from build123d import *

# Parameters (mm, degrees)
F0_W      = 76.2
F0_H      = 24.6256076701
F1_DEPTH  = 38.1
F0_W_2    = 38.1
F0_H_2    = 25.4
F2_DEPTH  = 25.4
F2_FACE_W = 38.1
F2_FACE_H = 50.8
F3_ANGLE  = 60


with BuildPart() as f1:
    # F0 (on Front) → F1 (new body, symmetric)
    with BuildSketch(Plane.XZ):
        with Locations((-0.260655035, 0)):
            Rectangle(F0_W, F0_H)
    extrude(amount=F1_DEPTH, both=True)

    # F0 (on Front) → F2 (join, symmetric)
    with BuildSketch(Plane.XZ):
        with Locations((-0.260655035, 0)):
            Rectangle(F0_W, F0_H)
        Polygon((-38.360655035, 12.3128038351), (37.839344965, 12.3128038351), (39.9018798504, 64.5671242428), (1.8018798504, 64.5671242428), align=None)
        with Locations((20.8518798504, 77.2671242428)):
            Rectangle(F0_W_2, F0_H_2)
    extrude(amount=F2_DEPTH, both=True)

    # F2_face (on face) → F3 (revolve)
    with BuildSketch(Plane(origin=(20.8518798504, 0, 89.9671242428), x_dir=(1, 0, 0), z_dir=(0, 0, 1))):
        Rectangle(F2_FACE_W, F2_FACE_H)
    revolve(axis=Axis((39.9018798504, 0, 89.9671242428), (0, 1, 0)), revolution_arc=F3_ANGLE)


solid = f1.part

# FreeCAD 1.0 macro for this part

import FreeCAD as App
import Part
import Sketcher

V = App.Vector
Q = App.Units.Quantity

doc = App.newDocument("Part")
body = doc.addObject("PartDesign::Body", "Body")

# Sketch on XZ plane
sketch1 = body.newObject("Sketcher::SketchObject", "Sketch")
sketch1.AttachmentSupport = (doc.getObject("XZ_Plane"), [""])
sketch1.MapMode = "FlatFace"
sketch1.addGeometry([
    Part.LineSegment(V(-38.360655, 12.312804, 0), V(-38.360655, -12.312804, 0)),
    Part.LineSegment(V(-38.360655, -12.312804, 0), V(37.839345, -12.312804, 0)),
    Part.LineSegment(V(37.839345, -12.312804, 0), V(37.839345, 12.312804, 0)),
    Part.LineSegment(V(37.839345, 12.312804, 0), V(-38.360655, 12.312804, 0)),
], False)
sketch1.addConstraint([
    Sketcher.Constraint("Coincident", 0, 2, 1, 1),
    Sketcher.Constraint("Coincident", 1, 2, 2, 1),
    Sketcher.Constraint("Coincident", 2, 2, 3, 1),
    Sketcher.Constraint("Coincident", 3, 2, 0, 1),
    Sketcher.Constraint("Vertical", 0),
    Sketcher.Constraint("Horizontal", 1),
    Sketcher.Constraint("Vertical", 2),
    Sketcher.Constraint("Horizontal", 3),
    Sketcher.Constraint("DistanceX", 1, 1, 1, 2, Q("3 in")),
    Sketcher.Constraint("DistanceY", 0, 2, 0, 1, Q("24.625608 mm")),
    Sketcher.Constraint("DistanceX", 0, 2, -1, 1, Q("38.360655 mm")),
    Sketcher.Constraint("DistanceY", 0, 2, -1, 1, Q("12.312804 mm")),
])
pad1 = body.newObject("PartDesign::Pad", "Pad")
pad1.Profile = sketch1
pad1.Length = Q("3 in")
pad1.Midplane = True

# Sketch on XZ plane
sketch2 = body.newObject("Sketcher::SketchObject", "Sketch001")
sketch2.AttachmentSupport = (doc.getObject("XZ_Plane"), [""])
sketch2.MapMode = "FlatFace"
sketch2.addGeometry([
    Part.LineSegment(V(-38.360655, 12.312804, 0), V(-38.360655, -12.312804, 0)),  # 0
    Part.LineSegment(V(-38.360655, -12.312804, 0), V(37.839345, -12.312804, 0)),  # 1
    Part.LineSegment(V(37.839345, -12.312804, 0), V(37.839345, 12.312804, 0)),  # 2
    Part.LineSegment(V(37.839345, 12.312804, 0), V(39.90188, 64.567124, 0)),  # 3
    Part.LineSegment(V(39.90188, 64.567124, 0), V(39.90188, 89.967124, 0)),  # 4
    Part.LineSegment(V(39.90188, 89.967124, 0), V(1.80188, 89.967124, 0)),  # 5
    Part.LineSegment(V(1.80188, 89.967124, 0), V(1.80188, 64.567124, 0)),  # 6
    Part.LineSegment(V(1.80188, 64.567124, 0), V(-38.360655, 12.312804, 0)),  # 7
], False)
sketch2.addConstraint([
    Sketcher.Constraint("Coincident", 0, 2, 1, 1),
    Sketcher.Constraint("Coincident", 1, 2, 2, 1),
    Sketcher.Constraint("Coincident", 2, 2, 3, 1),
    Sketcher.Constraint("Coincident", 3, 2, 4, 1),
    Sketcher.Constraint("Coincident", 4, 2, 5, 1),
    Sketcher.Constraint("Coincident", 5, 2, 6, 1),
    Sketcher.Constraint("Coincident", 6, 2, 7, 1),
    Sketcher.Constraint("Coincident", 7, 2, 0, 1),
    Sketcher.Constraint("Vertical", 0),
    Sketcher.Constraint("Horizontal", 1),
    Sketcher.Constraint("Vertical", 2),
    Sketcher.Constraint("Vertical", 4),
    Sketcher.Constraint("Horizontal", 5),
    Sketcher.Constraint("Vertical", 6),
    Sketcher.Constraint("Horizontal", 3, 2, 6, 2),
    Sketcher.Constraint("Horizontal", 2, 2, 7, 2),
    Sketcher.Constraint("DistanceX", 1, 1, 1, 2, Q("3 in")),
    Sketcher.Constraint("DistanceY", 4, 1, 4, 2, Q("1 in")),
    Sketcher.Constraint("DistanceX", 5, 2, 5, 1, Q("1.5 in")),
    Sketcher.Constraint("Distance", 3, Q("52.29501 mm")),
    Sketcher.Constraint("DistanceY", 0, 2, 0, 1, Q("24.625608 mm")),
    Sketcher.Constraint("DistanceX", -1, 1, 3, 2, Q("39.90188 mm")),
    Sketcher.Constraint("DistanceY", 2, 2, 3, 2, Q("52.25432 mm")),
    Sketcher.Constraint("DistanceY", 0, 2, -1, 1, Q("12.312804 mm")),
])
pad2 = body.newObject("PartDesign::Pad", "Pad001")
pad2.Profile = sketch2
pad2.Length = Q("2 in")
pad2.Midplane = True

# Sketch on XY plane
sketch3 = body.newObject("Sketcher::SketchObject", "Sketch002")
sketch3.AttachmentSupport = (doc.getObject("XY_Plane"), [""])
sketch3.MapMode = "FlatFace"
sketch3.AttachmentOffset = App.Placement(V(0, 0, 89.967124), App.Rotation())
sketch3.addGeometry([
    Part.LineSegment(V(1.80188, 25.4, 0), V(1.80188, -25.4, 0)),
    Part.LineSegment(V(1.80188, -25.4, 0), V(39.90188, -25.4, 0)),
    Part.LineSegment(V(39.90188, -25.4, 0), V(39.90188, 25.4, 0)),
    Part.LineSegment(V(39.90188, 25.4, 0), V(1.80188, 25.4, 0)),
], False)
sketch3.addGeometry(Part.LineSegment(V(39.90188, -25.4, 0), V(39.90188, 25.4, 0)), True)  # axis
sketch3.addConstraint([
    Sketcher.Constraint("Coincident", 0, 2, 1, 1),
    Sketcher.Constraint("Coincident", 1, 2, 2, 1),
    Sketcher.Constraint("Coincident", 2, 2, 3, 1),
    Sketcher.Constraint("Coincident", 3, 2, 0, 1),
    Sketcher.Constraint("Vertical", 0),
    Sketcher.Constraint("Horizontal", 1),
    Sketcher.Constraint("Vertical", 2),
    Sketcher.Constraint("Horizontal", 3),
    Sketcher.Constraint("Vertical", 4),
    Sketcher.Constraint("Coincident", 4, 1, 1, 2),
    Sketcher.Constraint("Horizontal", 3, 2, 4, 2),
    Sketcher.Constraint("DistanceY", 0, 2, 0, 1, Q("2 in")),
    Sketcher.Constraint("DistanceX", 1, 1, 1, 2, Q("1.5 in")),
    Sketcher.Constraint("DistanceY", 0, 2, -1, 1, Q("1 in")),
    Sketcher.Constraint("DistanceX", -1, 1, 0, 2, Q("1.80188 mm")),
])
revolution = body.newObject("PartDesign::Revolution", "Revolution")
revolution.Profile = sketch3
revolution.ReferenceAxis = (sketch3, ["Axis0"])
revolution.Angle = 60

doc.recompute()
